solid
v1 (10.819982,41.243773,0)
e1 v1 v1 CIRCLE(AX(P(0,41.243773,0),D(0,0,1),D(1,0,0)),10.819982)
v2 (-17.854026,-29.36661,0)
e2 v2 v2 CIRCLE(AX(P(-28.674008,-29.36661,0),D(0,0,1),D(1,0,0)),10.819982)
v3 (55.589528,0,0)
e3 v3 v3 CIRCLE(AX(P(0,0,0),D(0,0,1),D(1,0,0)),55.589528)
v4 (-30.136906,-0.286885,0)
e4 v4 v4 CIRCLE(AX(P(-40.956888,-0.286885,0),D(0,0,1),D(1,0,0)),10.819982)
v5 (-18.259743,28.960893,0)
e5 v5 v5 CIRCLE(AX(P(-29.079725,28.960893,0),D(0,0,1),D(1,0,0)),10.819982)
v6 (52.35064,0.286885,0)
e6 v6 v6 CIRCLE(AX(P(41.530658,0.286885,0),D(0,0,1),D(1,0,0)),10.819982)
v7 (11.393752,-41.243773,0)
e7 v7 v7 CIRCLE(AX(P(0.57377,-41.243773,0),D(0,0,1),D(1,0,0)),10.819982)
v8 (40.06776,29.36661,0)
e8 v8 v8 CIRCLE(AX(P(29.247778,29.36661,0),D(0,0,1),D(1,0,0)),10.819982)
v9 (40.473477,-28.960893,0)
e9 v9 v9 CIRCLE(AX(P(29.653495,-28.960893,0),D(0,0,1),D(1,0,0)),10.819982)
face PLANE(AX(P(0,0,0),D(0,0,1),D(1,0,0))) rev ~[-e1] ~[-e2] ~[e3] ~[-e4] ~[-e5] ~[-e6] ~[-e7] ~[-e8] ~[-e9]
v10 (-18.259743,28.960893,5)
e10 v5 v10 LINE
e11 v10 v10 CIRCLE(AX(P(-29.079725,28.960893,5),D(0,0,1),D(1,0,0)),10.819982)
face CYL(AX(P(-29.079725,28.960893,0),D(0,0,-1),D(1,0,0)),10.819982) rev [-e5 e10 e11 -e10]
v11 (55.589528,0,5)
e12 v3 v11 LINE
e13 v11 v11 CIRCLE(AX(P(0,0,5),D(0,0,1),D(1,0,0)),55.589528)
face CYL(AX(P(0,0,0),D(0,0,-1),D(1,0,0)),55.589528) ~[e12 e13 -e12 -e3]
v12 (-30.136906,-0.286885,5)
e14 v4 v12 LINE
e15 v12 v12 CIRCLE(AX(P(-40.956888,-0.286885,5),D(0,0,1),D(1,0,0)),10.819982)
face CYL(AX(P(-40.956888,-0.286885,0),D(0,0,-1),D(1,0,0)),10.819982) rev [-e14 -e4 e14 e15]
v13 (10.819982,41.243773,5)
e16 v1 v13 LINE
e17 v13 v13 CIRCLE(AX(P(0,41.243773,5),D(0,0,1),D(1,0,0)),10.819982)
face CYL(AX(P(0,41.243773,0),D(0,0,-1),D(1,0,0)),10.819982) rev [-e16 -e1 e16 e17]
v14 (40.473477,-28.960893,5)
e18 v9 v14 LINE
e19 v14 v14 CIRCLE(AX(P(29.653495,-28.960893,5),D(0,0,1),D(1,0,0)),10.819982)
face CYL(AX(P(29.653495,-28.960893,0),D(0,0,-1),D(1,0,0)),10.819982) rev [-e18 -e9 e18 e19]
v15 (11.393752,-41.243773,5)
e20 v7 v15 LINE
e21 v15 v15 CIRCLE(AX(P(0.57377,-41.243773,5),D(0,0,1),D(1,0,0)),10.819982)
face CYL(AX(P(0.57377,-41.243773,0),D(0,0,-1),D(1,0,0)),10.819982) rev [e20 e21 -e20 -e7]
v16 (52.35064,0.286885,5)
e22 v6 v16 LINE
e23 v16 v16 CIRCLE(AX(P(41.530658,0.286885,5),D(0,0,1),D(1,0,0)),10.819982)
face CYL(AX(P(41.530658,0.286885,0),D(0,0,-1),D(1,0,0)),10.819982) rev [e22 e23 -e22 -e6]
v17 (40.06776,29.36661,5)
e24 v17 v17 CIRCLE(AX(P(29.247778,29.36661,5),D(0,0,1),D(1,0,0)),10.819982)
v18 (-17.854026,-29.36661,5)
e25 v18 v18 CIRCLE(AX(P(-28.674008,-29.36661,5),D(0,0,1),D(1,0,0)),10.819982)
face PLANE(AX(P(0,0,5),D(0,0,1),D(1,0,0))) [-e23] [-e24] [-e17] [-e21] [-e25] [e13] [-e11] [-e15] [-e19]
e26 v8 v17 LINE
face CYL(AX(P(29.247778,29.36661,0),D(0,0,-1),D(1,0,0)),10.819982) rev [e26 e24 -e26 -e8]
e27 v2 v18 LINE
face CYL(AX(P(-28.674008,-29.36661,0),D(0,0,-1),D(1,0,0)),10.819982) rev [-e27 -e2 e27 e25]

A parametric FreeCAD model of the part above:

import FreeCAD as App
import Part
import Sketcher

V = App.Vector
Q = App.Units.Quantity

doc = App.newDocument("Part")
params = doc.addObject("Spreadsheet::Sheet", "Params")
for row, (alias, value) in enumerate([
    ("pad1_length", "5 mm"),
], start=1):
    params.set(f"A{row}", alias)
    params.set(f"B{row}", "=" + value)
    params.setAlias(f"B{row}", alias)

body = doc.addObject("PartDesign::Body", "Body")

sketch1 = body.newObject("Sketcher::SketchObject", "Sketch")
sketch1.AttachmentSupport = (doc.getObject("XY_Plane"), [""])
sketch1.MapMode = "FlatFace"
sketch1.addGeometry(Part.Circle(V(0, 0, 0), V(0, 0, 1), 56), False)
sketch1.addGeometry(Part.Circle(V(-29, -29, 0), V(0, 0, 1), 11), False)
sketch1.addGeometry(Part.Circle(V(-41, 0, 0), V(0, 0, 1), 11), False)
sketch1.addGeometry(Part.Circle(V(1, -41, 0), V(0, 0, 1), 11), False)
sketch1.addGeometry(Part.Circle(V(30, -29, 0), V(0, 0, 1), 11), False)
sketch1.addGeometry(Part.Circle(V(-29, 29, 0), V(0, 0, 1), 11), False)
sketch1.addGeometry(Part.Circle(V(0, 41, 0), V(0, 0, 1), 11), False)
sketch1.addGeometry(Part.Circle(V(42, 0, 0), V(0, 0, 1), 11), False)
sketch1.addGeometry(Part.Circle(V(29, 29, 0), V(0, 0, 1), 11), False)
sketch1.addConstraint(Sketcher.Constraint("Coincident", 0, 3, -1, 1))
sketch1.addConstraint(Sketcher.Constraint("Equal", 1, 2))
sketch1.addConstraint(Sketcher.Constraint("Equal", 2, 3))
sketch1.addConstraint(Sketcher.Constraint("Equal", 3, 4))
sketch1.addConstraint(Sketcher.Constraint("Equal", 4, 5))
sketch1.addConstraint(Sketcher.Constraint("Equal", 5, 6))
sketch1.addConstraint(Sketcher.Constraint("Equal", 6, 7))
sketch1.addConstraint(Sketcher.Constraint("Equal", 7, 8))
sketch1.addConstraint(Sketcher.Constraint("PointOnObject", 6, 3, -2))
sketch1.addConstraint(Sketcher.Constraint("Diameter", 0, Q("111.179056 mm")))
sketch1.addConstraint(Sketcher.Constraint("Diameter", 1, Q("21.639964 mm")))
sketch1.addConstraint(Sketcher.Constraint("DistanceX", 1, 3, -1, 1, Q("28.674008 mm")))
sketch1.addConstraint(Sketcher.Constraint("DistanceY", 1, 3, -1, 1, Q("29.36661 mm")))
sketch1.addConstraint(Sketcher.Constraint("DistanceX", -1, 1, 3, 3, Q("0.57377 mm")))
sketch1.addConstraint(Sketcher.Constraint("DistanceX", -1, 1, 7, 3, Q("41.530658 mm")))
sketch1.addConstraint(Sketcher.Constraint("DistanceX", -1, 1, 8, 3, Q("29.247778 mm")))
sketch1.addConstraint(Sketcher.Constraint("DistanceY", -1, 1, 8, 3, Q("29.36661 mm")))
sketch1.addConstraint(Sketcher.Constraint("DistanceX", 2, 3, 1, 3, Q("12.28288 mm")))
sketch1.addConstraint(Sketcher.Constraint("DistanceY", 3, 3, 4, 3, Q("12.28288 mm")))
sketch1.addConstraint(Sketcher.Constraint("DistanceY", 2, 3, 5, 3, Q("29.247778 mm")))
sketch1.addConstraint(Sketcher.Constraint("DistanceX", 5, 3, 4, 3, Q("58.73322 mm")))
sketch1.addConstraint(Sketcher.Constraint("DistanceY", 5, 3, 6, 3, Q("12.28288 mm")))
sketch1.addConstraint(Sketcher.Constraint("DistanceY", 4, 3, 7, 3, Q("29.247778 mm")))
sketch1.addConstraint(Sketcher.Constraint("DistanceY", 2, 3, -1, 1, Q("0.286885 mm")))
sketch1.addConstraint(Sketcher.Constraint("DistanceY", 3, 3, -1, 1, Q("41.243773 mm")))
sketch1.addConstraint(Sketcher.Constraint("DistanceX", -1, 1, 4, 3, Q("29.653495 mm")))
pad1 = body.newObject("PartDesign::Pad", "Pad")
pad1.Profile = sketch1
pad1.setExpression("Length", "Params.pad1_length")

doc.recompute()
